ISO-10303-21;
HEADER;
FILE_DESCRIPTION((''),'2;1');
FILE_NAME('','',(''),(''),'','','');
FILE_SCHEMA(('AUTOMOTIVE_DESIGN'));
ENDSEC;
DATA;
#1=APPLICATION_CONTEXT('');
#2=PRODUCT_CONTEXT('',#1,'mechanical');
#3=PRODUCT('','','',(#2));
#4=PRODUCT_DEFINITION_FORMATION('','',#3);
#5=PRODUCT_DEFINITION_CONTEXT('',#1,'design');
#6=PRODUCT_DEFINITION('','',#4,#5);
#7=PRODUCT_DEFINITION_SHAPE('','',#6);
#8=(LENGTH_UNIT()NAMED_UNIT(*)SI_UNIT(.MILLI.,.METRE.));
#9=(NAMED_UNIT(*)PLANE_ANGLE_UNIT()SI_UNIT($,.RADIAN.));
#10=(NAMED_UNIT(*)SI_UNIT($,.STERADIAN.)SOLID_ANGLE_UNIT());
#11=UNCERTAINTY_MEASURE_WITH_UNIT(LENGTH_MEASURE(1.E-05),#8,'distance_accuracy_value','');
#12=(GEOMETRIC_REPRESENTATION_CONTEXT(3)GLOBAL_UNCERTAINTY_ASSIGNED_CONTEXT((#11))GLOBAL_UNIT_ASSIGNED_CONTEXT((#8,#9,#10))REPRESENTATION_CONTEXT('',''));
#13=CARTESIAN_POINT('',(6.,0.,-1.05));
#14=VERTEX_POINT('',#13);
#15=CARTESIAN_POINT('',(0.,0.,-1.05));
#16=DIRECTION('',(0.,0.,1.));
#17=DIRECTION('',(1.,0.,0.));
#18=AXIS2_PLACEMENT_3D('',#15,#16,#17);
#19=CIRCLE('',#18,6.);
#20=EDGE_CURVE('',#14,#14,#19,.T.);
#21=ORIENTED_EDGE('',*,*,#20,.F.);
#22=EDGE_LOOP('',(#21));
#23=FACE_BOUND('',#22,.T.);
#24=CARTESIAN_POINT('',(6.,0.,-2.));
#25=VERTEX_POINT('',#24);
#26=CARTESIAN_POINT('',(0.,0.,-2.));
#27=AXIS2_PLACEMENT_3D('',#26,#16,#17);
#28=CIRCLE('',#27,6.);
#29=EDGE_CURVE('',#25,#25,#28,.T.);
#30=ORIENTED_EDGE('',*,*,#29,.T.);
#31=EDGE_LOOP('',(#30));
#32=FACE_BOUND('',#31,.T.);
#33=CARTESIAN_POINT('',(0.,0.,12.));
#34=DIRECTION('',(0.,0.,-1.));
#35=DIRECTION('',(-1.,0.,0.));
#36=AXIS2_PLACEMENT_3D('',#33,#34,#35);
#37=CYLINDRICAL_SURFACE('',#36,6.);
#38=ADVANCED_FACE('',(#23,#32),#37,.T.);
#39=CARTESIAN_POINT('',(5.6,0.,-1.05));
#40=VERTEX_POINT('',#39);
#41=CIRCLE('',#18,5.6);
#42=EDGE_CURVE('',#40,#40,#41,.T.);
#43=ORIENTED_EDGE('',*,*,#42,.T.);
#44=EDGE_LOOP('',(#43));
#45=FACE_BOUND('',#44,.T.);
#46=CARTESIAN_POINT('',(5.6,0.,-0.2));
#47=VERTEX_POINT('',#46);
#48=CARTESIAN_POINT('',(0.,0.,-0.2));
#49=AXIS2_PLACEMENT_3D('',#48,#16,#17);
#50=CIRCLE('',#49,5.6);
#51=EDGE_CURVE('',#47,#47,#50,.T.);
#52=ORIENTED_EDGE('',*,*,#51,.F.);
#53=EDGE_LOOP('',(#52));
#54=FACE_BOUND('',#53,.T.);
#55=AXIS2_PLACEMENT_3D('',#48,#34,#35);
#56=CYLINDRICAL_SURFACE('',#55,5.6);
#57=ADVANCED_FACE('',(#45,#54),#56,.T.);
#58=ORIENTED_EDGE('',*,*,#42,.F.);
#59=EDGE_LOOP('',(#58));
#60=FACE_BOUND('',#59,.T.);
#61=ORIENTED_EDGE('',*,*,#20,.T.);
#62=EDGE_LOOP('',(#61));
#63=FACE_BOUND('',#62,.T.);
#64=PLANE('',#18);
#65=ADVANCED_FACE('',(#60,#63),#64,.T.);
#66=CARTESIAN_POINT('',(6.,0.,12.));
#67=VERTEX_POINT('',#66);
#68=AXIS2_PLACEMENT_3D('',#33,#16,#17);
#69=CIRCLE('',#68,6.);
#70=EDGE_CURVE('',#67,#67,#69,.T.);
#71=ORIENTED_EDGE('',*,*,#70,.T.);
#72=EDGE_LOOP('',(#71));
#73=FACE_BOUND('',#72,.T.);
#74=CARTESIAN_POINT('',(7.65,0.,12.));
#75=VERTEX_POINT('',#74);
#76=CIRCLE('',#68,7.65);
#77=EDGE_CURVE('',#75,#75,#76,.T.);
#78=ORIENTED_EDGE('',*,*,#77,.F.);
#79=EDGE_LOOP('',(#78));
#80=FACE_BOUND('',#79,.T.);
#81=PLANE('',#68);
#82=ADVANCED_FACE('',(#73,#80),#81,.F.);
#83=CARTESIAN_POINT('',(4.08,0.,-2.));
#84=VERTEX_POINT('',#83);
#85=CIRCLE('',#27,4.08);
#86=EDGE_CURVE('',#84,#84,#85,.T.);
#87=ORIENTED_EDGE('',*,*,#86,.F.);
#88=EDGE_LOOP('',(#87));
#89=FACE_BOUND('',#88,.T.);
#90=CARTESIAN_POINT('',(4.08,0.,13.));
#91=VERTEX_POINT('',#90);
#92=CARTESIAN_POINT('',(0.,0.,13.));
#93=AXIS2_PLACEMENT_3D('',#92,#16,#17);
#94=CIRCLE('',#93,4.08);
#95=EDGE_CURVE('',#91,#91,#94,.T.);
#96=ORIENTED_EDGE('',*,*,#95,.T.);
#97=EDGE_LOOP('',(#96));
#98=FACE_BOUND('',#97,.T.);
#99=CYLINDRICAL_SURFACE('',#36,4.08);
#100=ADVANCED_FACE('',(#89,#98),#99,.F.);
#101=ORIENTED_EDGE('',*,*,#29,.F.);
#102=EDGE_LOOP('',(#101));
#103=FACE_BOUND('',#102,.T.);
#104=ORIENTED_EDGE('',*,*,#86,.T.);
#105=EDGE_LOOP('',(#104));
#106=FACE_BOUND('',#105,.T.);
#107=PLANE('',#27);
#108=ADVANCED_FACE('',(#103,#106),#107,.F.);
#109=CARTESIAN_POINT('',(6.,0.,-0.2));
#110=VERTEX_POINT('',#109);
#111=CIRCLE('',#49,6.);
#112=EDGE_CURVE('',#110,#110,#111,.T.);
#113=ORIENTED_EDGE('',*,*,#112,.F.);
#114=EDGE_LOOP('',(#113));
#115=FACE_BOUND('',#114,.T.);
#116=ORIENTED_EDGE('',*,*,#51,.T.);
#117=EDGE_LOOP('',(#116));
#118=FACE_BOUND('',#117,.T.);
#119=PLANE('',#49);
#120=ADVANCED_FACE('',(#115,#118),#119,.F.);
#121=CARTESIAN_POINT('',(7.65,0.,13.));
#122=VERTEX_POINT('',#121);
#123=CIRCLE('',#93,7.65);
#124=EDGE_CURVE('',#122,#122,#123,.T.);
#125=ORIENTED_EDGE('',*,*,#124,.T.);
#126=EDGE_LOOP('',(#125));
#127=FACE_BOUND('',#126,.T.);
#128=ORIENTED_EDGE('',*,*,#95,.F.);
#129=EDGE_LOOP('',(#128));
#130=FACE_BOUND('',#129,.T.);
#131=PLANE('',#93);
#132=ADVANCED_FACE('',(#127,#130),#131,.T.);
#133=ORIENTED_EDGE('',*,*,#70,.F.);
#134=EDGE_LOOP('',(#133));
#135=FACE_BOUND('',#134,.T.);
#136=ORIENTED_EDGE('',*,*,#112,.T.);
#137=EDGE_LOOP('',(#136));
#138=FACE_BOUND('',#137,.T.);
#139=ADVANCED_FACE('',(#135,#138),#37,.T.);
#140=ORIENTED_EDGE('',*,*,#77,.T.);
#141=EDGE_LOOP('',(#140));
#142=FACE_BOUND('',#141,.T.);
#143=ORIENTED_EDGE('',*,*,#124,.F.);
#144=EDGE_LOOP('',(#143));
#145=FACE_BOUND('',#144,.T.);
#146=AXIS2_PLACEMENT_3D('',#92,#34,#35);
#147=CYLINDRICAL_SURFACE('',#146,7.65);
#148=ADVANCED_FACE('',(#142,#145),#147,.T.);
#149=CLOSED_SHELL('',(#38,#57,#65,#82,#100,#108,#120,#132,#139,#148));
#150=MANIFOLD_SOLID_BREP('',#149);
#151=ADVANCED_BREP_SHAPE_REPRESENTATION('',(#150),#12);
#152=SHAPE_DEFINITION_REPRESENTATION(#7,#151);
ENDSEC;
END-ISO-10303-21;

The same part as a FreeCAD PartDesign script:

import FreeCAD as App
import Part
import Sketcher
from FreeCAD import Vector
Q = App.Units.Quantity

doc = App.newDocument("Part")
params = doc.addObject("Spreadsheet::Sheet", "Params")
for row, (alias, value) in enumerate([
    ("sketch1_diameter", "12 mm"),
    ("sketch1_diameter2", "8.16 mm"),
    ("pad1_length", "14 mm"),
    ("sketch2_diameter", "15.3 mm"),
    ("sketch2_diameter2", "8.16 mm"),
    ("pad2_length", "1 mm"),
    ("sketch3_diameter", "12.2 mm"),
    ("sketch3_diameter2", "11.2 mm"),
    ("pocket1_length", "0.85 mm"),
], start=1):
    params.set(f"A{row}", alias)
    params.set(f"B{row}", "=" + value)
    params.setAlias(f"B{row}", alias)

body = doc.addObject("PartDesign::Body", "Body")

# Sketch on XY plane
sketch1 = doc.addObject("Sketcher::SketchObject", "Sketch")
body.addObject(sketch1)
sketch1.AttachmentSupport = (doc.XY_Plane, [""])
sketch1.MapMode = "FlatFace"
sketch1.AttachmentOffset = App.Placement(Vector(0, 0, -2), App.Rotation())
sketch1.addGeometry([
    Part.Circle(Vector(0, 0, 0), Vector(0, 0, 1), 6),
    Part.Circle(Vector(0, 0, 0), Vector(0, 0, 1), 4.1),
], False)
sketch1.addConstraint([
    Sketcher.Constraint("Coincident", 0, 3, -1, 1),
    Sketcher.Constraint("Coincident", 1, 3, -1, 1),
    Sketcher.Constraint("Diameter", 0, Q("12 mm")),
    Sketcher.Constraint("Diameter", 1, Q("8.16 mm")),
])
sketch1.setExpression("Constraints[2]", "Params.sketch1_diameter")
sketch1.setExpression("Constraints[3]", "Params.sketch1_diameter2")
pad1 = doc.addObject("PartDesign::Pad", "Pad")
body.addObject(pad1)
pad1.Profile = sketch1
pad1.setExpression("Length", "Params.pad1_length")

# Sketch on XY plane
sketch2 = doc.addObject("Sketcher::SketchObject", "Sketch001")
body.addObject(sketch2)
sketch2.AttachmentSupport = (doc.XY_Plane, [""])
sketch2.MapMode = "FlatFace"
sketch2.AttachmentOffset = App.Placement(Vector(0, 0, 12), App.Rotation())
sketch2.addGeometry([
    Part.Circle(Vector(0, 0, 0), Vector(0, 0, 1), 7.7),
    Part.Circle(Vector(0, 0, 0), Vector(0, 0, 1), 4.1),
], False)
sketch2.addConstraint([
    Sketcher.Constraint("Coincident", 0, 3, -1, 1),
    Sketcher.Constraint("Coincident", 1, 3, -1, 1),
    Sketcher.Constraint("Diameter", 0, Q("15.3 mm")),
    Sketcher.Constraint("Diameter", 1, Q("8.16 mm")),
])
sketch2.setExpression("Constraints[2]", "Params.sketch2_diameter")
sketch2.setExpression("Constraints[3]", "Params.sketch2_diameter2")
pad2 = doc.addObject("PartDesign::Pad", "Pad001")
body.addObject(pad2)
pad2.Profile = sketch2
pad2.setExpression("Length", "Params.pad2_length")

# Sketch on XY plane
sketch3 = doc.addObject("Sketcher::SketchObject", "Sketch002")
body.addObject(sketch3)
sketch3.AttachmentSupport = (doc.XY_Plane, [""])
sketch3.MapMode = "FlatFace"
sketch3.AttachmentOffset = App.Placement(Vector(0, 0, -1.05), App.Rotation())
sketch3.addGeometry([
    Part.Circle(Vector(0, 0, 0), Vector(0, 0, 1), 6),
    Part.Circle(Vector(0, 0, 0), Vector(0, 0, 1), 6),
], False)
sketch3.addConstraint([
    Sketcher.Constraint("Coincident", 0, 3, -1, 1),
    Sketcher.Constraint("Coincident", 1, 3, -1, 1),
    Sketcher.Constraint("Diameter", 0, Q("12.2 mm")),
    Sketcher.Constraint("Diameter", 1, Q("11.2 mm")),
])
sketch3.setExpression("Constraints[2]", "Params.sketch3_diameter")
sketch3.setExpression("Constraints[3]", "Params.sketch3_diameter2")
pocket1 = doc.addObject("PartDesign::Pocket", "Pocket")
body.addObject(pocket1)
pocket1.Profile = sketch3
pocket1.setExpression("Length", "Params.pocket1_length")
pocket1.Reversed = True

doc.recompute()
